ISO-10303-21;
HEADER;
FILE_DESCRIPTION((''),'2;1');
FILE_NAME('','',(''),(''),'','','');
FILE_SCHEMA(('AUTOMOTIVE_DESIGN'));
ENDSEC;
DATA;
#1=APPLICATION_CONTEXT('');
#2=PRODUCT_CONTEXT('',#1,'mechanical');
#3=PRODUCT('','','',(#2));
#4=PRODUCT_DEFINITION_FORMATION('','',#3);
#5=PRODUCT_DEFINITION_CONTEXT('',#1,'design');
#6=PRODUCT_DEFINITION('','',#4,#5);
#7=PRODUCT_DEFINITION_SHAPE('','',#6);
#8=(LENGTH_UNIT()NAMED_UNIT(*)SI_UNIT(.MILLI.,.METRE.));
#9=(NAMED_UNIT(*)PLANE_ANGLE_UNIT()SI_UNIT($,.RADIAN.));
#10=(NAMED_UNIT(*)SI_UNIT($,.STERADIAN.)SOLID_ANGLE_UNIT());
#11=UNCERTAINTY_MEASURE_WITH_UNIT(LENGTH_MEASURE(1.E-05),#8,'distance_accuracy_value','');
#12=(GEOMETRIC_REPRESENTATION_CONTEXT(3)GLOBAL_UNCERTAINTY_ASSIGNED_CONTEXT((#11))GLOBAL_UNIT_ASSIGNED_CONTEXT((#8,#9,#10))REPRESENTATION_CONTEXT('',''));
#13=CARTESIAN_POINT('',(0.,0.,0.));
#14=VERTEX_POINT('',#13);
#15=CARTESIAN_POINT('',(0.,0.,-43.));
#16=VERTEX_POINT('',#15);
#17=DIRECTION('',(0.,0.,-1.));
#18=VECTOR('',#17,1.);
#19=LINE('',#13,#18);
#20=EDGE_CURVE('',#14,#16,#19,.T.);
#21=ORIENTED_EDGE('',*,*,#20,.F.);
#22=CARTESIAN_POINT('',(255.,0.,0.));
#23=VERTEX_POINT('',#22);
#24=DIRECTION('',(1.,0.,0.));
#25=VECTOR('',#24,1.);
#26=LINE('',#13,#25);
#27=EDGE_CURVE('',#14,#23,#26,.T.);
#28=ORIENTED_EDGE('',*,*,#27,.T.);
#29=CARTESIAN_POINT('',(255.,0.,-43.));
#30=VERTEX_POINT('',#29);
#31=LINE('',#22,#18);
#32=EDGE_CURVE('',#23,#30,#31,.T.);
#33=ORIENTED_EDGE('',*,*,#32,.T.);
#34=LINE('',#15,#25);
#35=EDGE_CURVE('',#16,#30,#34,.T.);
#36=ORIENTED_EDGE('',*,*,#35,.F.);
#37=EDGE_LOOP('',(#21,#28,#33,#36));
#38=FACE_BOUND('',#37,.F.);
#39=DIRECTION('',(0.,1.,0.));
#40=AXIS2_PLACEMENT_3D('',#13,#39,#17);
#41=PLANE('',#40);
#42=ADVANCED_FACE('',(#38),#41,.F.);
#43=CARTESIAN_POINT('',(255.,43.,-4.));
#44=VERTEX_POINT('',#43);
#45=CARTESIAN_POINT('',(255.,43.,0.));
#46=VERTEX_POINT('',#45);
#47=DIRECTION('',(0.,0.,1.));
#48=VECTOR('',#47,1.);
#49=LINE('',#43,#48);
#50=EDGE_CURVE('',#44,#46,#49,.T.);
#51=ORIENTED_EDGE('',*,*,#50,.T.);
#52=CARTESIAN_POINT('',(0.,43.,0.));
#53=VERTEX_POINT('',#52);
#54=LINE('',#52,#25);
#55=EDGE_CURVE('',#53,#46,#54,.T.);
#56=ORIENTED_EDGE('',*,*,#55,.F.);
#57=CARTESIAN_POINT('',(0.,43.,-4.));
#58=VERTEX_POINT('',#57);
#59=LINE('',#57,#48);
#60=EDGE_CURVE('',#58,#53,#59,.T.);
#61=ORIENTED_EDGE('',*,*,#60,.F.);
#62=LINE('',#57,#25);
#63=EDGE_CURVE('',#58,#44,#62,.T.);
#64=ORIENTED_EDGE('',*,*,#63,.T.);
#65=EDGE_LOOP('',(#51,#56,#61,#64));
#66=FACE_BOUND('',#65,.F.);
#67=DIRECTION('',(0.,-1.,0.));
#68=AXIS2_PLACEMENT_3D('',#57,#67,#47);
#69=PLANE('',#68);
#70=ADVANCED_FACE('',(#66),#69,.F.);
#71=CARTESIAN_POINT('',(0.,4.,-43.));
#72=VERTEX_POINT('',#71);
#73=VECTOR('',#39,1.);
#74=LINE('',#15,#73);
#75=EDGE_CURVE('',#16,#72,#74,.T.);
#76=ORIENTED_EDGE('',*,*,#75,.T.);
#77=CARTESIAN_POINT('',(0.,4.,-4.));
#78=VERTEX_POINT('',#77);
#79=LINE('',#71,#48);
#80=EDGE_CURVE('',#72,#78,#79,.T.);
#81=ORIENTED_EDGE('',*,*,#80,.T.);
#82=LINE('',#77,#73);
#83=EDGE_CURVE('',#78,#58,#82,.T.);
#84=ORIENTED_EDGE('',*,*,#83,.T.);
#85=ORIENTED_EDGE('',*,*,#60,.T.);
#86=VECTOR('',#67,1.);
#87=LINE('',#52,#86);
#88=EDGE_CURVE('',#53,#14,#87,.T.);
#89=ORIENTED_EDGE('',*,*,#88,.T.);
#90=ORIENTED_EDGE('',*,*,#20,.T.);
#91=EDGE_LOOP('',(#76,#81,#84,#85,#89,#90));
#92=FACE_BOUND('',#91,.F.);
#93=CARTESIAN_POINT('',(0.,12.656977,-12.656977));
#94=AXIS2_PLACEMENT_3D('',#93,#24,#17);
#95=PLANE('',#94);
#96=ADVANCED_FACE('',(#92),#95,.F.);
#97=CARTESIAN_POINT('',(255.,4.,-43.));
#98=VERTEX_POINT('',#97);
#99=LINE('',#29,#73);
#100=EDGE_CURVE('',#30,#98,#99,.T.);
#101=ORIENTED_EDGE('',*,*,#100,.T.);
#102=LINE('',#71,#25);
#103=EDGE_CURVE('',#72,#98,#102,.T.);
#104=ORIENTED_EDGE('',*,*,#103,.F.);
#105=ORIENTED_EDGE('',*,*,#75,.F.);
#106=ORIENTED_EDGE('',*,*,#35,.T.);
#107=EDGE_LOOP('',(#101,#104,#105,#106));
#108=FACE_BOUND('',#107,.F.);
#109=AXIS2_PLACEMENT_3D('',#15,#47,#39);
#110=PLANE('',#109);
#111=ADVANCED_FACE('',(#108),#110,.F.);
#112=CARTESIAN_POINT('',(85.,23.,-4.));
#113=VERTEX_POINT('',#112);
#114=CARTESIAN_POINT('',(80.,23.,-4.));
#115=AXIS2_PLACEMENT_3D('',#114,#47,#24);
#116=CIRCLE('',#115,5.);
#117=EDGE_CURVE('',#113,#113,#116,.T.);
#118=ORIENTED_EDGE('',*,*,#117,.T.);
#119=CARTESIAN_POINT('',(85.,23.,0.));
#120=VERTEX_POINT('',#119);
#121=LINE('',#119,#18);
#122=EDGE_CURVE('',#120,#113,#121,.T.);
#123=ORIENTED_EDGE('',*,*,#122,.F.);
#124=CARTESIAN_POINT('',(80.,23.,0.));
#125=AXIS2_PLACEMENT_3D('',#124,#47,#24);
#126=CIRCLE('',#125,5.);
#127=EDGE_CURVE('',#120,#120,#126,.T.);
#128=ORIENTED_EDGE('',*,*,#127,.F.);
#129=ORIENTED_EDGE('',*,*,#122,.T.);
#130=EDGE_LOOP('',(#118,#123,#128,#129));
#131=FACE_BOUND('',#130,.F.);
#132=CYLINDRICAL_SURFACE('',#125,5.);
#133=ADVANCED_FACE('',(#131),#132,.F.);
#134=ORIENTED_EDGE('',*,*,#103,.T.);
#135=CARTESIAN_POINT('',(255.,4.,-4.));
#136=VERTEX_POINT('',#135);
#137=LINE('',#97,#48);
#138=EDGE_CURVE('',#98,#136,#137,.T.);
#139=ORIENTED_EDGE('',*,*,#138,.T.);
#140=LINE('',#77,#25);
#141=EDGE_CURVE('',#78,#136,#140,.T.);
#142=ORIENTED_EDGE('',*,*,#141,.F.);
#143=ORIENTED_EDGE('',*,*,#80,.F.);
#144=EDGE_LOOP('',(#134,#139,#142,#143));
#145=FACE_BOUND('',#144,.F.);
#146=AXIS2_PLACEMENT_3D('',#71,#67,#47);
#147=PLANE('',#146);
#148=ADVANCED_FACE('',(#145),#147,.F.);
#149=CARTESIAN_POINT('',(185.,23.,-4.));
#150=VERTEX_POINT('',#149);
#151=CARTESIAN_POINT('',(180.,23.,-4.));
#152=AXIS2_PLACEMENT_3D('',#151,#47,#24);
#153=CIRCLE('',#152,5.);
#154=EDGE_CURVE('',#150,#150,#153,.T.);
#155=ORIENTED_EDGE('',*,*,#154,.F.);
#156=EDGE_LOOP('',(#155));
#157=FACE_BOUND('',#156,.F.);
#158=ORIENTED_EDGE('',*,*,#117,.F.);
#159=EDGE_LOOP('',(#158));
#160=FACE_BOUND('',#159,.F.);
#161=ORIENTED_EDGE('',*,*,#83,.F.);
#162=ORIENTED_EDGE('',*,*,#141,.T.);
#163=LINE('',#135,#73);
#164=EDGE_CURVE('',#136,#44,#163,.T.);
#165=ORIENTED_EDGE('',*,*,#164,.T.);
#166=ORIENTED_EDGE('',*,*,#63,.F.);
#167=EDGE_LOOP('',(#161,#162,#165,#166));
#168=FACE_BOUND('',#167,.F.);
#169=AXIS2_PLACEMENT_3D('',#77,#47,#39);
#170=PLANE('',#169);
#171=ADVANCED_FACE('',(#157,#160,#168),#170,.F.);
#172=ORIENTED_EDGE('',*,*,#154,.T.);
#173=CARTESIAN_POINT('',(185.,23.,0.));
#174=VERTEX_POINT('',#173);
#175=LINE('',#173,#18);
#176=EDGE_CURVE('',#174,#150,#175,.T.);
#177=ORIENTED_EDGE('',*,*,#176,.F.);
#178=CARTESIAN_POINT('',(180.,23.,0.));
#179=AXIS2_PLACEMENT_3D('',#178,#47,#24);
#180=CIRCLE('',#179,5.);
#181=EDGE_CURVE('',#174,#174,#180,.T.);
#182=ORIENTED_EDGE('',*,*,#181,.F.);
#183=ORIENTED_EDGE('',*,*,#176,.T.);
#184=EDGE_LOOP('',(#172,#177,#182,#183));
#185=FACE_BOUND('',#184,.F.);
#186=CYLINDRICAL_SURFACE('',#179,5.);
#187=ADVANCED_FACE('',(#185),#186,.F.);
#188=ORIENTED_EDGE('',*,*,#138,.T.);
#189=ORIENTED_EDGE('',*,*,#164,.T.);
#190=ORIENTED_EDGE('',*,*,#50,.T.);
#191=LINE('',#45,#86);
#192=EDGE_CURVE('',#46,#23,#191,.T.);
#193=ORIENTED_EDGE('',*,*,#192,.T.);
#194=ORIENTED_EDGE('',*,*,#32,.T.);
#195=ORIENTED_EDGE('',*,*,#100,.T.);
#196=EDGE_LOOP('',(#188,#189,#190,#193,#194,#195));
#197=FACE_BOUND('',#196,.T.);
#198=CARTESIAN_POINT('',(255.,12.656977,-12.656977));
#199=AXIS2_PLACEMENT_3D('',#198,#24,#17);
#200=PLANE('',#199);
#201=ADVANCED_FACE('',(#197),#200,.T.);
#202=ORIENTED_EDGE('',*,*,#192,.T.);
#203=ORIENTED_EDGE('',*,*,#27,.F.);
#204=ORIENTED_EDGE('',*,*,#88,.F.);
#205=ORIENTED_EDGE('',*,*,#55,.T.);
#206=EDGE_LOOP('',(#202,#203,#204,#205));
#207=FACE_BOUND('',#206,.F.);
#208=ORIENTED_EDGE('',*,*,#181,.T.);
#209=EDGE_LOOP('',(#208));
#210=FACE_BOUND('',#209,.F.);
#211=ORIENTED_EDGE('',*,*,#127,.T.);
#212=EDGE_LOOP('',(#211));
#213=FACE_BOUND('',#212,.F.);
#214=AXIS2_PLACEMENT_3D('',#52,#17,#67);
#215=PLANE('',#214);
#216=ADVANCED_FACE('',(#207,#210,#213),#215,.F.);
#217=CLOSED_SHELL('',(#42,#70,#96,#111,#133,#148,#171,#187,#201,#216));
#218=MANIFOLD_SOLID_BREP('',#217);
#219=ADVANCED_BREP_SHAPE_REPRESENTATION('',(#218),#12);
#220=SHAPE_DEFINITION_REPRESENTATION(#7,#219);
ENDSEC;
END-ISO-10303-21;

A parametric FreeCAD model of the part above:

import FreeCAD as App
import Part
import Sketcher
from FreeCAD import Vector
Q = App.Units.Quantity

doc = App.newDocument("Part")
body = doc.addObject("PartDesign::Body", "Body")

# Sketch on YZ plane
sketch1 = body.newObject("Sketcher::SketchObject", "Sketch")
sketch1.AttachmentSupport = (doc.getObject("YZ_Plane"), [""])
sketch1.MapMode = "FlatFace"
sketch1.addGeometry([
    Part.LineSegment(Vector(43, 0, 0), Vector(0, 0, 0)),  # 0
    Part.LineSegment(Vector(0, 0, 0), Vector(0, -43, 0)),  # 1
    Part.LineSegment(Vector(0, -43, 0), Vector(4, -43, 0)),  # 2
    Part.LineSegment(Vector(4, -43, 0), Vector(4, -4, 0)),  # 3
    Part.LineSegment(Vector(4, -4, 0), Vector(43, -4, 0)),  # 4
    Part.LineSegment(Vector(43, -4, 0), Vector(43, 0, 0)),  # 5
], False)
sketch1.addConstraint([
    Sketcher.Constraint("Coincident", 0, 2, 1, 1),
    Sketcher.Constraint("Coincident", 1, 2, 2, 1),
    Sketcher.Constraint("Coincident", 2, 2, 3, 1),
    Sketcher.Constraint("Coincident", 3, 2, 4, 1),
    Sketcher.Constraint("Coincident", 4, 2, 5, 1),
    Sketcher.Constraint("Coincident", 5, 2, 0, 1),
    Sketcher.Constraint("Horizontal", 0),
    Sketcher.Constraint("Vertical", 1),
    Sketcher.Constraint("Horizontal", 2),
    Sketcher.Constraint("Vertical", 3),
    Sketcher.Constraint("Horizontal", 4),
    Sketcher.Constraint("Vertical", 5),
    Sketcher.Constraint("Coincident", 0, 2, -1, 1),
    Sketcher.Constraint("Equal", 0, 1),
    Sketcher.Constraint("Equal", 4, 3),
    Sketcher.Constraint("DistanceX", 0, 2, 0, 1, Q("43 mm")),
    Sketcher.Constraint("DistanceX", 2, 1, 2, 2, Q("4 mm")),
])
pad1 = body.newObject("PartDesign::Pad", "Pad")
pad1.Profile = sketch1
pad1.Length = 255

# Sketch on XY plane
sketch2 = body.newObject("Sketcher::SketchObject", "Sketch001")
sketch2.AttachmentSupport = (doc.getObject("XY_Plane"), [""])
sketch2.MapMode = "FlatFace"
sketch2.addGeometry([
    Part.Circle(Vector(80, 23, 0), Vector(0, 0, 1), 5),
    Part.Circle(Vector(180, 23, 0), Vector(0, 0, 1), 5),
], False)
sketch2.addConstraint([
    Sketcher.Constraint("Equal", 0, 1),
    Sketcher.Constraint("Horizontal", 0, 3, 1, 3),
    Sketcher.Constraint("Diameter", 0, Q("10 mm")),
    Sketcher.Constraint("DistanceX", -1, 1, 0, 3, Q("80 mm")),
    Sketcher.Constraint("DistanceY", -1, 1, 0, 3, Q("23 mm")),
    Sketcher.Constraint("DistanceX", -1, 1, 1, 3, Q("180 mm")),
])
pocket1 = body.newObject("PartDesign::Pocket", "Pocket")
pocket1.Profile = sketch2
pocket1.Type = "ThroughAll"

doc.recompute()
